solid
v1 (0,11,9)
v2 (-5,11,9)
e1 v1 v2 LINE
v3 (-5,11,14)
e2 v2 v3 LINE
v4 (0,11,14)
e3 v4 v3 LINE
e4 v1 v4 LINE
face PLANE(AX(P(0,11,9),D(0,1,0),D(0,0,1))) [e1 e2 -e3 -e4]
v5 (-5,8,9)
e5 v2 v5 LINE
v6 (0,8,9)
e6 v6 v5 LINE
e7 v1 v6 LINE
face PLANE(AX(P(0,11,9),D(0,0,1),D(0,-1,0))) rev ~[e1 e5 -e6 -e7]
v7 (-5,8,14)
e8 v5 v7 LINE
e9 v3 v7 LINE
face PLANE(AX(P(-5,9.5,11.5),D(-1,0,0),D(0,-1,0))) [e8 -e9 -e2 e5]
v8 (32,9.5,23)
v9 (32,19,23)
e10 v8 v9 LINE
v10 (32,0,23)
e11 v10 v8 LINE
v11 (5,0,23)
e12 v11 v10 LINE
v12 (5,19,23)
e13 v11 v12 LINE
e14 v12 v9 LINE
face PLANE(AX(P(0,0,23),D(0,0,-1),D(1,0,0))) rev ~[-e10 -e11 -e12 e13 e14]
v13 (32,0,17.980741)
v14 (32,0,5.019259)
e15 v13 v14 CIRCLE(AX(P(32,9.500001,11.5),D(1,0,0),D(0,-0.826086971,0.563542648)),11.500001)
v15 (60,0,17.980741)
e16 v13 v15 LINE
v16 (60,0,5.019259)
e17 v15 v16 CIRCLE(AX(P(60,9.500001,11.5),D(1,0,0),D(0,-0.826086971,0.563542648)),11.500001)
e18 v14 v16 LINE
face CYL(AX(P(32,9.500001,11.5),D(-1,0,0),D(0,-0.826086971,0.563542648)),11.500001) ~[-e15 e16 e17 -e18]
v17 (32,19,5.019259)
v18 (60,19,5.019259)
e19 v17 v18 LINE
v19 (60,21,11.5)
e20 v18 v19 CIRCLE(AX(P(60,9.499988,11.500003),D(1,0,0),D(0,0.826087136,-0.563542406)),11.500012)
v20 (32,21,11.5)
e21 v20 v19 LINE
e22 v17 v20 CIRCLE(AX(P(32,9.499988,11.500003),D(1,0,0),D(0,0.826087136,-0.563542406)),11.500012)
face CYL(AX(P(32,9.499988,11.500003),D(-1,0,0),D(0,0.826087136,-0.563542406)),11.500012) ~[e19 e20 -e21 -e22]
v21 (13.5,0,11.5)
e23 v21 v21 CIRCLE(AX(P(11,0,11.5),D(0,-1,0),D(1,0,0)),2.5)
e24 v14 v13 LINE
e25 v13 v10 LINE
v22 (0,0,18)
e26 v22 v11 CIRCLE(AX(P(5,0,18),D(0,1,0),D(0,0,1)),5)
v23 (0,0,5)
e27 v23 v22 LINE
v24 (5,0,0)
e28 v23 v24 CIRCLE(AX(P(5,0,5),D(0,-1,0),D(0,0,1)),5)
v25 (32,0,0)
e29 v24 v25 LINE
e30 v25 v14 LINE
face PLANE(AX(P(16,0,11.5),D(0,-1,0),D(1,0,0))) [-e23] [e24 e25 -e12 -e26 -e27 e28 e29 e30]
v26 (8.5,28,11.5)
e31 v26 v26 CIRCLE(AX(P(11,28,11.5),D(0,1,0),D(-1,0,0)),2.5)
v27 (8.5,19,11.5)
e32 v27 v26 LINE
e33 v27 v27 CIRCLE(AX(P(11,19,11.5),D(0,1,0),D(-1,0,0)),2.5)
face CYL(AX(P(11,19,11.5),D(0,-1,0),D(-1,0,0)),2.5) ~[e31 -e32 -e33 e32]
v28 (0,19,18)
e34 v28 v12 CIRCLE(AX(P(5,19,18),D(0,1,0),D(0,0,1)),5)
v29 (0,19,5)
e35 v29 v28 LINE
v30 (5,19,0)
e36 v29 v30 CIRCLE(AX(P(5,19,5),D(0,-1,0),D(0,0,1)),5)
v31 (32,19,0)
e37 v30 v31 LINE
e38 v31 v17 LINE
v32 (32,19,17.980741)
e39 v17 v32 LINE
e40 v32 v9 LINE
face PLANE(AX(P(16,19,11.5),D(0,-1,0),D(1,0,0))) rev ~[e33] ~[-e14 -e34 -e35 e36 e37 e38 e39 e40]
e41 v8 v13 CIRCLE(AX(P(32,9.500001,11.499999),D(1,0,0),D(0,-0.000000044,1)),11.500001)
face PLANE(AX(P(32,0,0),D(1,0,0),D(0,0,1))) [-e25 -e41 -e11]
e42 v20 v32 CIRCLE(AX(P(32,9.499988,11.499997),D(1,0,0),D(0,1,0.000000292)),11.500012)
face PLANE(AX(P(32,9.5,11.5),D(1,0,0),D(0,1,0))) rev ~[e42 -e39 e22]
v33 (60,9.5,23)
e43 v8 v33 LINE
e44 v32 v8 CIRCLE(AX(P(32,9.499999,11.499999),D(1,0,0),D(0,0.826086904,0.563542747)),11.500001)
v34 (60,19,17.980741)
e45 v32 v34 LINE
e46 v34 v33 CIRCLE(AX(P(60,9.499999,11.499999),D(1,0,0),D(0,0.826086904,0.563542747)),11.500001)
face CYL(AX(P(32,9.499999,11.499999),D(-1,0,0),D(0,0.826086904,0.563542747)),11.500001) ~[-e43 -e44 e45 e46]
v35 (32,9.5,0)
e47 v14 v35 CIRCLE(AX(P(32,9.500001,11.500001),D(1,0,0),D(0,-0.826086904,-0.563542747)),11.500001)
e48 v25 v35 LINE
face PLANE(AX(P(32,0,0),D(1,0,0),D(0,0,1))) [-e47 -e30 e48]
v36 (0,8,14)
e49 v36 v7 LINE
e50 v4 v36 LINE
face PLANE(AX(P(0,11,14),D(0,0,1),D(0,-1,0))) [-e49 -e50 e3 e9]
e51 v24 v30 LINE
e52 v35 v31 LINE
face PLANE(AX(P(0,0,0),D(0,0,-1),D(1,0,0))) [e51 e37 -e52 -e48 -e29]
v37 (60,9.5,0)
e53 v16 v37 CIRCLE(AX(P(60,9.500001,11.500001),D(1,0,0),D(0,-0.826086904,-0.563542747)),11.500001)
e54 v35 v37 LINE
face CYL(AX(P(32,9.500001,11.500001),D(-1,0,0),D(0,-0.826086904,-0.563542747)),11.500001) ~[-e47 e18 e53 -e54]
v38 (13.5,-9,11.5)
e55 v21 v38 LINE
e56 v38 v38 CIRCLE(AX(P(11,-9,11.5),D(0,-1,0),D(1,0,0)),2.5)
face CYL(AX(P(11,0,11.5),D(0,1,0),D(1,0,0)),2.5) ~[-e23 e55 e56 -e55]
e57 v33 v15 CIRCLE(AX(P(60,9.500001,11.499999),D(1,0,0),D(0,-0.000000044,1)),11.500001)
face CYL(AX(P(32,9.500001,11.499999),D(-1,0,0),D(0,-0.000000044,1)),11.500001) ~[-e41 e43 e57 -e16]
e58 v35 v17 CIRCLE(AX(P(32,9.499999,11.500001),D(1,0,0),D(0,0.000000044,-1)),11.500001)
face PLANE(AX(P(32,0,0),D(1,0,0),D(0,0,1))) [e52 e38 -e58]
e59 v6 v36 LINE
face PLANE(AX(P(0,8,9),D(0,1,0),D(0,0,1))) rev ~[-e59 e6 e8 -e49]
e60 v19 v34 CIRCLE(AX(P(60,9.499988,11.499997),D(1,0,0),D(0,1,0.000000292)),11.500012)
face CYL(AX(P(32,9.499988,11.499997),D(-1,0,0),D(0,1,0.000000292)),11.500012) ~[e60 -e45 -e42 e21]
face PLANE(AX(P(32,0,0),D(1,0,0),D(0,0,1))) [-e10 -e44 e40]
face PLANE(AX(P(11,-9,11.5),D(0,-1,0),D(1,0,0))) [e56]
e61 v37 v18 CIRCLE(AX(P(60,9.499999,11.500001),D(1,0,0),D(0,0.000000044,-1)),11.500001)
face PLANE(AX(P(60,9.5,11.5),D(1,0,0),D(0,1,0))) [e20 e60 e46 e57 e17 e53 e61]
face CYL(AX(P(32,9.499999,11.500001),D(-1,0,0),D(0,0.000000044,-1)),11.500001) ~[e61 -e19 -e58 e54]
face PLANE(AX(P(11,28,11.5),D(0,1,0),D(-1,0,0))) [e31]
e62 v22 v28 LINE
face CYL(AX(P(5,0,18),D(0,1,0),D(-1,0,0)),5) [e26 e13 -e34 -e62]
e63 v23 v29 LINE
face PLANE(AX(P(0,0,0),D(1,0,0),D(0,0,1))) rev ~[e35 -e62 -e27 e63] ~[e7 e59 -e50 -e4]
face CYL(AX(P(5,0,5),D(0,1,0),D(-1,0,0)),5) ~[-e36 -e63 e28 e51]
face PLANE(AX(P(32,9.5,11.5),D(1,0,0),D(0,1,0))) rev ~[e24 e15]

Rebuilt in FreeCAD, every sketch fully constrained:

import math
import FreeCAD as App
import Part
import Sketcher
Q = App.Units.Quantity


def edges_at(feature, points):
    """Names of the edges that pass closest to the given points."""
    edges = feature.Shape.Edges
    near = lambda p: min(range(len(edges)), key=lambda i: edges[i].distToShape(Part.Vertex(*p))[0])
    return sorted({f"Edge{near(p) + 1}" for p in points})


def add_polygon(sketch, points):
    """Adds a closed chain of lines whose ends are joined by coincident constraints."""
    first, n = sketch.GeometryCount, len(points)
    for a, b in zip(points, points[1:] + points[:1]):
        sketch.addGeometry(Part.LineSegment(App.Vector(*a, 0), App.Vector(*b, 0)), False)
    for i in range(n):
        sketch.addConstraint(Sketcher.Constraint("Coincident", first + i, 2, first + (i + 1) % n, 1))

doc = App.newDocument("Part")
body = doc.addObject("PartDesign::Body", "Body")

# Sketch on XZ plane
sketch1 = body.newObject("Sketcher::SketchObject", "Sketch")
sketch1.AttachmentSupport = (doc.getObject("XZ_Plane"), [""])
sketch1.MapMode = "FlatFace"
add_polygon(sketch1, [(0, 23), (0, 0), (32, 0), (32, 23)])  # lines 0-3
sketch1.addConstraint([
    Sketcher.Constraint("Vertical", 0),
    Sketcher.Constraint("Horizontal", 1),
    Sketcher.Constraint("Vertical", 2),
    Sketcher.Constraint("Horizontal", 3),
    Sketcher.Constraint("Coincident", 0, 2, -1, 1),
    Sketcher.Constraint("DistanceX", 1, 1, 1, 2, Q("32 mm")),
    Sketcher.Constraint("DistanceY", 0, 2, 0, 1, Q("23 mm")),
])
pad1 = body.newObject("PartDesign::Pad", "Pad")
pad1.Profile = sketch1
pad1.Length = 19
pad1.Reversed = True
doc.recompute()

fillet = body.newObject("PartDesign::Fillet", "Fillet")
fillet.Base = (pad1, edges_at(pad1, [(0, 9.5, 23)]))
fillet.Radius = 5
doc.recompute()

fillet2 = body.newObject("PartDesign::Fillet", "Fillet001")
fillet2.Base = (fillet, edges_at(fillet, [(0, 9.5, 0)]))
fillet2.Radius = 5

# Sketch on YZ plane
sketch2 = body.newObject("Sketcher::SketchObject", "Sketch001")
sketch2.AttachmentSupport = (doc.getObject("YZ_Plane"), [""])
sketch2.MapMode = "FlatFace"
add_polygon(sketch2, [(11, 14), (11, 9), (8, 9), (8, 14)])  # lines 0-3
sketch2.addConstraint([
    Sketcher.Constraint("Vertical", 0),
    Sketcher.Constraint("Horizontal", 1),
    Sketcher.Constraint("Vertical", 2),
    Sketcher.Constraint("Horizontal", 3),
    Sketcher.Constraint("DistanceX", 1, 2, 1, 1, Q("3 mm")),
    Sketcher.Constraint("DistanceY", 0, 2, 0, 1, Q("5 mm")),
    Sketcher.Constraint("DistanceX", -1, 1, 0, 2, Q("11 mm")),
    Sketcher.Constraint("DistanceY", -1, 1, 0, 2, Q("9 mm")),
])
pad2 = body.newObject("PartDesign::Pad", "Pad001")
pad2.Profile = sketch2
pad2.Length = 5
pad2.Reversed = True

# Sketch on YZ plane
sketch3 = body.newObject("Sketcher::SketchObject", "Sketch002")
sketch3.AttachmentSupport = (doc.getObject("YZ_Plane"), [""])
sketch3.MapMode = "FlatFace"
sketch3.AttachmentOffset = App.Placement(App.Vector(0, 0, 32), App.Rotation())
sketch3.addGeometry([
    Part.ArcOfCircle(Part.Circle(App.Vector(9, 11, 0), App.Vector(0, 0, 1), 12), math.radians(34), math.radians(90)),  # 0
    Part.ArcOfCircle(Part.Circle(App.Vector(10, 11, 0), App.Vector(0, 0, 1), 12), math.radians(90), math.radians(146)),  # 1
    Part.ArcOfCircle(Part.Circle(App.Vector(10, 12, 0), App.Vector(0, 0, 1), 12), math.radians(146), math.radians(214)),  # 2
    Part.ArcOfCircle(Part.Circle(App.Vector(10, 12, 0), App.Vector(0, 0, 1), 12), math.radians(-146), math.radians(-90)),  # 3
    Part.ArcOfCircle(Part.Circle(App.Vector(9, 12, 0), App.Vector(0, 0, 1), 12), math.radians(-90), math.radians(-34)),  # 4
    Part.ArcOfCircle(Part.Circle(App.Vector(9, 12, 0), App.Vector(0, 0, 1), 12), math.radians(-34), math.radians(0)),  # 5
    Part.ArcOfCircle(Part.Circle(App.Vector(9, 11, 0), App.Vector(0, 0, 1), 12), math.radians(0), math.radians(34)),  # 6
], False)
sketch3.addConstraint([
    Sketcher.Constraint("Tangent", 0, 2, 1, 1),
    Sketcher.Constraint("Tangent", 1, 2, 2, 1),
    Sketcher.Constraint("Tangent", 2, 2, 3, 1),
    Sketcher.Constraint("Tangent", 3, 2, 4, 1),
    Sketcher.Constraint("Tangent", 4, 2, 5, 1),
    Sketcher.Constraint("Tangent", 5, 2, 6, 1),
    Sketcher.Constraint("Tangent", 6, 2, 0, 1),
    Sketcher.Constraint("Coincident", 2, 3, 0, 3),
    Sketcher.Constraint("Coincident", 4, 3, 0, 3),
    Sketcher.Constraint("PointOnObject", 1, 2, -2),
    Sketcher.Constraint("PointOnObject", 2, 2, -2),
    Sketcher.Constraint("PointOnObject", 3, 2, -1),
    Sketcher.Constraint("Horizontal", 2, 2, 4, 2),
    Sketcher.Constraint("Horizontal", 4, 3, 5, 2),
    Sketcher.Constraint("Horizontal", 1, 2, 6, 2),
    Sketcher.Constraint("Vertical", 4, 3, 0, 2),
    Sketcher.Constraint("Vertical", 0, 2, 3, 2),
    Sketcher.Constraint("Radius", 0, Q("11.500001 mm")),
    Sketcher.Constraint("DistanceX", -1, 1, 4, 2, Q("19 mm")),
])
pad3 = body.newObject("PartDesign::Pad", "Pad002")
pad3.Profile = sketch3
pad3.Length = 28

# Sketch on XZ plane
sketch4 = body.newObject("Sketcher::SketchObject", "Sketch003")
sketch4.AttachmentSupport = (doc.getObject("XZ_Plane"), [""])
sketch4.MapMode = "FlatFace"
sketch4.addGeometry(Part.Circle(App.Vector(11, 11.5, 0), App.Vector(0, 0, 1), 2.5), False)
sketch4.addConstraint([
    Sketcher.Constraint("Diameter", 0, Q("5 mm")),
    Sketcher.Constraint("DistanceX", -1, 1, 0, 3, Q("11 mm")),
    Sketcher.Constraint("DistanceY", -1, 1, 0, 3, Q("11.5 mm")),
])
pad4 = body.newObject("PartDesign::Pad", "Pad003")
pad4.Profile = sketch4
pad4.Length = 9

# Sketch on XZ plane
sketch5 = body.newObject("Sketcher::SketchObject", "Sketch004")
sketch5.AttachmentSupport = (doc.getObject("XZ_Plane"), [""])
sketch5.MapMode = "FlatFace"
sketch5.AttachmentOffset = App.Placement(App.Vector(0, 0, -19), App.Rotation())
sketch5.addGeometry(Part.Circle(App.Vector(11, 11.5, 0), App.Vector(0, 0, 1), 2.5), False)
sketch5.addConstraint([
    Sketcher.Constraint("Diameter", 0, Q("5 mm")),
    Sketcher.Constraint("DistanceX", -1, 1, 0, 3, Q("11 mm")),
    Sketcher.Constraint("DistanceY", -1, 1, 0, 3, Q("11.5 mm")),
])
pad5 = body.newObject("PartDesign::Pad", "Pad004")
pad5.Profile = sketch5
pad5.Length = 9
pad5.Reversed = True

doc.recompute()
